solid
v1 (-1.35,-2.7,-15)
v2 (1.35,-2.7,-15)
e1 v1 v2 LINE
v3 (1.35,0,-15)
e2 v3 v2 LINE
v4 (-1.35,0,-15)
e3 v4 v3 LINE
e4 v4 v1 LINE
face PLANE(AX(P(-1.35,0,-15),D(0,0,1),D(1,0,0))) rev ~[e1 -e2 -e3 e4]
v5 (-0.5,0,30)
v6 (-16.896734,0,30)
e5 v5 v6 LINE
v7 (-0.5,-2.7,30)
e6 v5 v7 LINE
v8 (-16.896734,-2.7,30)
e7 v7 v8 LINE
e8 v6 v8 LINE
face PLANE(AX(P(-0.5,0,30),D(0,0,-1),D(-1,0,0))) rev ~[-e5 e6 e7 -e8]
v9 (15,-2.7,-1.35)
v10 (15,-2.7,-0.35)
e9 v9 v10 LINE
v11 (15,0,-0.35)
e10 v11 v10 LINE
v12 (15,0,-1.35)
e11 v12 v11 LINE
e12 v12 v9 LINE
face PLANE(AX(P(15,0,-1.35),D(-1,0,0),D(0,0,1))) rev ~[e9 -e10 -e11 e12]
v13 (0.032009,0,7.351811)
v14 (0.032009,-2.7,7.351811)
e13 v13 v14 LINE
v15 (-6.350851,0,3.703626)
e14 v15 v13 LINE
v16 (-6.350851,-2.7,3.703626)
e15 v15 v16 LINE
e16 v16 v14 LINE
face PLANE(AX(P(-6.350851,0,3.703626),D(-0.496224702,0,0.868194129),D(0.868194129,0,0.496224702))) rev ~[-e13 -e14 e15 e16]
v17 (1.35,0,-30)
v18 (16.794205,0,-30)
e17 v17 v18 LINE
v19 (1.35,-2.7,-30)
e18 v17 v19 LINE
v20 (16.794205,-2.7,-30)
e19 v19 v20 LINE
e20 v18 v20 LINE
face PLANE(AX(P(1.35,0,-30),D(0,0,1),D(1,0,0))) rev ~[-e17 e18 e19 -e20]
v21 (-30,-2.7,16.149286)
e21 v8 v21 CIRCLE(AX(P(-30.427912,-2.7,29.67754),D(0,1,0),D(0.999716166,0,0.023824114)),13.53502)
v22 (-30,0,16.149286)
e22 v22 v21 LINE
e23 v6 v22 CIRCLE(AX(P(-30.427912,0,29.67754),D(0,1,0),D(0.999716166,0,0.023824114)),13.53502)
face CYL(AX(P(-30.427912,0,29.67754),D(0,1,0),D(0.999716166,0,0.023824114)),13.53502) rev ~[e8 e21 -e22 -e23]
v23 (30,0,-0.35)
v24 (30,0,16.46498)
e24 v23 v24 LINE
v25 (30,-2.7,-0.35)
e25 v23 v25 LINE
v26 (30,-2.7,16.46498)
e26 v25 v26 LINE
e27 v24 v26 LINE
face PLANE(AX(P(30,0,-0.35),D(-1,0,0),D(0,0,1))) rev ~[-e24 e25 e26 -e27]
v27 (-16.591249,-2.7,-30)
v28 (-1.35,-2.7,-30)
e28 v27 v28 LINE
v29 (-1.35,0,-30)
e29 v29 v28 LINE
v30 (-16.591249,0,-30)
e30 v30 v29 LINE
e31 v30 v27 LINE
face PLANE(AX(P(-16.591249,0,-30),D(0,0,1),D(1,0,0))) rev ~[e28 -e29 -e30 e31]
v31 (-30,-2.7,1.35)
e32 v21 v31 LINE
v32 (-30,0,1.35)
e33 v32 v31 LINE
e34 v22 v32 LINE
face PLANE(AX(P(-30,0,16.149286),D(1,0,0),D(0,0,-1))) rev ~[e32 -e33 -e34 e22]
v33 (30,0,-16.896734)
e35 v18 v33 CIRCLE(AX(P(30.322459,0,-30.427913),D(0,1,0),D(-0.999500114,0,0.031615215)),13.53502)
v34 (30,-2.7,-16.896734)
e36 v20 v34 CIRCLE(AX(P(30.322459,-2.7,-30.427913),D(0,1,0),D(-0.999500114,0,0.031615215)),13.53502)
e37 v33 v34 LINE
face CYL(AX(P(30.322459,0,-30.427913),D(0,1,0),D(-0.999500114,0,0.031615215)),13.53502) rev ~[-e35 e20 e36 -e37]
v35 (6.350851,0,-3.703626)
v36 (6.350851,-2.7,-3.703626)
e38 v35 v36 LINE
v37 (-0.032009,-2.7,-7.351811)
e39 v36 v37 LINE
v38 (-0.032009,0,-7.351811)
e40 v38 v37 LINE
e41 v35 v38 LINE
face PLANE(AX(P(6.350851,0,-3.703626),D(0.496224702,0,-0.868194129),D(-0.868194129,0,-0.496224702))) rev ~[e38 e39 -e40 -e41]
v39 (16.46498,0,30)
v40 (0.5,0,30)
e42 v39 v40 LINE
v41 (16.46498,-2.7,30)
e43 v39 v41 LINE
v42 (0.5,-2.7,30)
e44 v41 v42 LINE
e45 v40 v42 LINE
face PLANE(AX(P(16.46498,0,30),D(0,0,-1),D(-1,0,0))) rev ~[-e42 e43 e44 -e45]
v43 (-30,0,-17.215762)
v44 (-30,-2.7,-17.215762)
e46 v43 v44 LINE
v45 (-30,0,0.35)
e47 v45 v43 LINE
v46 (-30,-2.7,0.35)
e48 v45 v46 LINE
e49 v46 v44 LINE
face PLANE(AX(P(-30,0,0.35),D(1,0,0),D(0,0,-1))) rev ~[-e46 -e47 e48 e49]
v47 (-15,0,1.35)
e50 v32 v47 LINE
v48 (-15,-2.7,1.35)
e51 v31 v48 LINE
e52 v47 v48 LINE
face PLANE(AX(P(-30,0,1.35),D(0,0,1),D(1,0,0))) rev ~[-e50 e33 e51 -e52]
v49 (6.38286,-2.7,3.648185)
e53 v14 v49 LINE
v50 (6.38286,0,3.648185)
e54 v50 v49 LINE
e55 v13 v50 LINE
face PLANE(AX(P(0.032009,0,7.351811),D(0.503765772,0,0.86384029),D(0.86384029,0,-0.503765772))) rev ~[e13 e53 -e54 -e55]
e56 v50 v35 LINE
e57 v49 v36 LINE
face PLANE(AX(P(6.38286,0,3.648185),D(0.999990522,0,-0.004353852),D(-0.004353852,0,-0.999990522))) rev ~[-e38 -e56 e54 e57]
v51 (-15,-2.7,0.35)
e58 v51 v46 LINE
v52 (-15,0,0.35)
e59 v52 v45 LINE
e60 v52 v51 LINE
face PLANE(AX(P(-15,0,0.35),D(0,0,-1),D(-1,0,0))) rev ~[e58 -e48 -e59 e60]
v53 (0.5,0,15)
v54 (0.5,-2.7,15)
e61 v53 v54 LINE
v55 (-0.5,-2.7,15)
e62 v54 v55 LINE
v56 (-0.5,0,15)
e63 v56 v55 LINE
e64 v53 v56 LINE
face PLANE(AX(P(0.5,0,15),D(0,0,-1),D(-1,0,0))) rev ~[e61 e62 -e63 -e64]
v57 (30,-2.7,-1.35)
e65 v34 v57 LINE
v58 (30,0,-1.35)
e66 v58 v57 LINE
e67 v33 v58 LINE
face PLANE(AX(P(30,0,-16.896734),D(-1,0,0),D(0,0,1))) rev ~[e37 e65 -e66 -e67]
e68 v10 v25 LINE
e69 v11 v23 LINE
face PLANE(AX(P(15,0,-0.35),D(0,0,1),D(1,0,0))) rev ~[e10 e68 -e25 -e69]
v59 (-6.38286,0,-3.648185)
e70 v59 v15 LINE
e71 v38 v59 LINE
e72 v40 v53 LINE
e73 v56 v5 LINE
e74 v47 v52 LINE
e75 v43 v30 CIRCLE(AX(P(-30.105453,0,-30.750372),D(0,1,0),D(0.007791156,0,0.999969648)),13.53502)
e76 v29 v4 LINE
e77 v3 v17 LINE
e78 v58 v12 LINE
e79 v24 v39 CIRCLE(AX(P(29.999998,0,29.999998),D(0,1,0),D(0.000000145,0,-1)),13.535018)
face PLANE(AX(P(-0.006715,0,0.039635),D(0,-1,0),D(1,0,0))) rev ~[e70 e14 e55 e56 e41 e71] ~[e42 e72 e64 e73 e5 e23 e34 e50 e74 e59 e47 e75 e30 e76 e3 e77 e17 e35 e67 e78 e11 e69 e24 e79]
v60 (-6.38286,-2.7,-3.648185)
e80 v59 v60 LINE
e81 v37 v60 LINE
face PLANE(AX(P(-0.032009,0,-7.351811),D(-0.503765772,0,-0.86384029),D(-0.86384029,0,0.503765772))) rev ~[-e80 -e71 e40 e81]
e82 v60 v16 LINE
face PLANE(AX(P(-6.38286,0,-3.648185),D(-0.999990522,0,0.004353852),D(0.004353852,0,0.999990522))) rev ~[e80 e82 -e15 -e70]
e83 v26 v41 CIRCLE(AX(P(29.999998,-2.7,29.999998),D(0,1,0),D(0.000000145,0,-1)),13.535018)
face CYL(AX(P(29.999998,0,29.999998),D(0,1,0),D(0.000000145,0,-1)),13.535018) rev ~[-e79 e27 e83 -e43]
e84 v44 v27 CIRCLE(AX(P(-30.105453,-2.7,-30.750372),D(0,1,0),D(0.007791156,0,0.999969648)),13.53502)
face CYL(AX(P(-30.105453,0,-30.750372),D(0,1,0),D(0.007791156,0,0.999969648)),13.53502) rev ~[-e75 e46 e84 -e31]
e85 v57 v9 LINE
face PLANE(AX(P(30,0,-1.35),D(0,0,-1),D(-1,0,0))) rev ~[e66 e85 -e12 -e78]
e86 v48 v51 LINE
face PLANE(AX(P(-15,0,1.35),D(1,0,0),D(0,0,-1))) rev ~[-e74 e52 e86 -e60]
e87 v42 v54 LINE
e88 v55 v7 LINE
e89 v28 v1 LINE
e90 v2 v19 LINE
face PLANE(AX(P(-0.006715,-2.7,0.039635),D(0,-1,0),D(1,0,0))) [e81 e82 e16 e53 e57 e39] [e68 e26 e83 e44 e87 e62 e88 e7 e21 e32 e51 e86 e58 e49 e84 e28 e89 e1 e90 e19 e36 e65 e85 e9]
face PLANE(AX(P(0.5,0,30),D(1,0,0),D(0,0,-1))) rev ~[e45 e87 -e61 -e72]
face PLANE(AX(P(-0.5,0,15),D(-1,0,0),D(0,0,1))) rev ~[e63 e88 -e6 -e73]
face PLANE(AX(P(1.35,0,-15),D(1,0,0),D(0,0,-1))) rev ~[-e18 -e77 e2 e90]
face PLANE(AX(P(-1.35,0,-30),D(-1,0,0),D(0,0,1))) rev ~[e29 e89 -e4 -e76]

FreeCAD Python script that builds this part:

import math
import FreeCAD as App
import Part
import Sketcher
from FreeCAD import Vector

doc = App.newDocument("Part")
body = doc.addObject("PartDesign::Body", "Body")

sketch1 = body.newObject("Sketcher::SketchObject", "Sketch")
sketch1.AttachmentSupport = (doc.getObject("XZ_Plane"), [""])
sketch1.MapMode = "FlatFace"
sketch1.addGeometry([
    Part.LineSegment(Vector(-0.5, 30, 0), Vector(-16.896734, 30, 0)),
    Part.ArcOfCircle(Part.Circle(Vector(-30.427912, 29.67754, 0), Vector(0, 0, 1), 13.53502), math.radians(-88.18828), math.radians(1.36515)),
    Part.LineSegment(Vector(-30, 16.149286, 0), Vector(-30, 1.35, 0)),
    Part.LineSegment(Vector(-30, 1.35, 0), Vector(-15, 1.35, 0)),
    Part.LineSegment(Vector(-15, 1.35, 0), Vector(-15, 0.35, 0)),
    Part.LineSegment(Vector(-15, 0.35, 0), Vector(-30, 0.35, 0)),
    Part.LineSegment(Vector(-30, 0.35, 0), Vector(-30, -17.215762, 0)),
    Part.ArcOfCircle(Part.Circle(Vector(-30.105453, -30.750372, 0), Vector(0, 0, 1), 13.53502), math.radians(3.178066), math.radians(89.553595)),
    Part.LineSegment(Vector(-16.591249, -30, 0), Vector(-1.35, -30, 0)),
    Part.LineSegment(Vector(-1.35, -30, 0), Vector(-1.35, -15, 0)),
    Part.LineSegment(Vector(-1.35, -15, 0), Vector(1.35, -15, 0)),
    Part.LineSegment(Vector(1.35, -15, 0), Vector(1.35, -30, 0)),
    Part.LineSegment(Vector(1.35, -30, 0), Vector(16.794205, -30, 0)),
    Part.ArcOfCircle(Part.Circle(Vector(30.322459, -30.427913, 0), Vector(0, 0, 1), 13.53502), math.radians(91.365148), math.radians(178.18828)),
    Part.LineSegment(Vector(30, -16.896734, 0), Vector(30, -1.35, 0)),
    Part.LineSegment(Vector(30, -1.35, 0), Vector(15, -1.35, 0)),
    Part.LineSegment(Vector(15, -1.35, 0), Vector(15, -0.35, 0)),
    Part.LineSegment(Vector(15, -0.35, 0), Vector(30, -0.35, 0)),
    Part.LineSegment(Vector(30, -0.35, 0), Vector(30, 16.46498, 0)),
    Part.ArcOfCircle(Part.Circle(Vector(29.999998, 29.999998, 0), Vector(0, 0, 1), 13.535018), math.radians(179.999992), math.radians(270.000008)),
    Part.LineSegment(Vector(16.46498, 30, 0), Vector(0.5, 30, 0)),
    Part.LineSegment(Vector(0.5, 30, 0), Vector(0.5, 15, 0)),
    Part.LineSegment(Vector(0.5, 15, 0), Vector(-0.5, 15, 0)),
    Part.LineSegment(Vector(-0.5, 15, 0), Vector(-0.5, 30, 0)),
    Part.LineSegment(Vector(-0.032009, -7.351811, 0), Vector(-6.38286, -3.648185, 0)),
    Part.LineSegment(Vector(-6.38286, -3.648185, 0), Vector(-6.350851, 3.703626, 0)),
    Part.LineSegment(Vector(-6.350851, 3.703626, 0), Vector(0.032009, 7.351811, 0)),
    Part.LineSegment(Vector(0.032009, 7.351811, 0), Vector(6.38286, 3.648185, 0)),
    Part.LineSegment(Vector(6.38286, 3.648185, 0), Vector(6.350851, -3.703626, 0)),
    Part.LineSegment(Vector(6.350851, -3.703626, 0), Vector(-0.032009, -7.351811, 0)),
], False)
sketch1.addConstraint([
    Sketcher.Constraint("Coincident", 0, 2, 1, 2),
    Sketcher.Constraint("Coincident", 1, 1, 2, 1),
    Sketcher.Constraint("Coincident", 2, 2, 3, 1),
    Sketcher.Constraint("Coincident", 3, 2, 4, 1),
    Sketcher.Constraint("Coincident", 4, 2, 5, 1),
    Sketcher.Constraint("Coincident", 5, 2, 6, 1),
    Sketcher.Constraint("Coincident", 6, 2, 7, 2),
    Sketcher.Constraint("Coincident", 7, 1, 8, 1),
    Sketcher.Constraint("Coincident", 8, 2, 9, 1),
    Sketcher.Constraint("Coincident", 9, 2, 10, 1),
    Sketcher.Constraint("Coincident", 10, 2, 11, 1),
    Sketcher.Constraint("Coincident", 11, 2, 12, 1),
    Sketcher.Constraint("Coincident", 12, 2, 13, 2),
    Sketcher.Constraint("Coincident", 13, 1, 14, 1),
    Sketcher.Constraint("Coincident", 14, 2, 15, 1),
    Sketcher.Constraint("Coincident", 15, 2, 16, 1),
    Sketcher.Constraint("Coincident", 16, 2, 17, 1),
    Sketcher.Constraint("Coincident", 17, 2, 18, 1),
    Sketcher.Constraint("Coincident", 18, 2, 19, 2),
    Sketcher.Constraint("Coincident", 19, 1, 20, 1),
    Sketcher.Constraint("Coincident", 20, 2, 21, 1),
    Sketcher.Constraint("Coincident", 21, 2, 22, 1),
    Sketcher.Constraint("Coincident", 22, 2, 23, 1),
    Sketcher.Constraint("Coincident", 23, 2, 0, 1),
    Sketcher.Constraint("Coincident", 24, 2, 25, 1),
    Sketcher.Constraint("Coincident", 25, 2, 26, 1),
    Sketcher.Constraint("Coincident", 26, 2, 27, 1),
    Sketcher.Constraint("Coincident", 27, 2, 28, 1),
    Sketcher.Constraint("Coincident", 28, 2, 29, 1),
    Sketcher.Constraint("Coincident", 29, 2, 24, 1),
    Sketcher.Constraint("Horizontal", 0),
    Sketcher.Constraint("Vertical", 2),
    Sketcher.Constraint("Horizontal", 3),
    Sketcher.Constraint("Vertical", 4),
    Sketcher.Constraint("Horizontal", 5),
    Sketcher.Constraint("Vertical", 6),
    Sketcher.Constraint("Horizontal", 8),
    Sketcher.Constraint("Vertical", 9),
    Sketcher.Constraint("Horizontal", 10),
    Sketcher.Constraint("Vertical", 11),
    Sketcher.Constraint("Horizontal", 12),
    Sketcher.Constraint("Vertical", 14),
    Sketcher.Constraint("Horizontal", 15),
    Sketcher.Constraint("Vertical", 16),
    Sketcher.Constraint("Horizontal", 17),
    Sketcher.Constraint("Vertical", 18),
    Sketcher.Constraint("Horizontal", 20),
    Sketcher.Constraint("Vertical", 21),
    Sketcher.Constraint("Horizontal", 22),
    Sketcher.Constraint("Vertical", 23),
    Sketcher.Constraint("Equal", 1, 7),
    Sketcher.Constraint("Equal", 7, 13),
    Sketcher.Constraint("Symmetric", 2, 2, 14, 2, -1, 1),
    Sketcher.Constraint("Symmetric", 4, 2, 16, 2, -1, 1),
    Sketcher.Constraint("Symmetric", 24, 2, 27, 2, -1, 1),
    Sketcher.Constraint("Symmetric", 25, 2, 28, 2, -1, 1),
    Sketcher.Constraint("Symmetric", 26, 2, 29, 2, -1, 1),
    Sketcher.Constraint("Symmetric", 8, 2, 11, 2, -2),
    Sketcher.Constraint("Symmetric", 20, 2, 23, 2, -2),
    Sketcher.Constraint("Horizontal", 19, 3, 0, 2),
    Sketcher.Constraint("Vertical", 2, 2, 5, 2),
    Sketcher.Constraint("Vertical", 19, 3, 13, 1),
    Sketcher.Constraint("Vertical", 14, 2, 17, 2),
    Sketcher.Constraint("Equal", 22, 4),
    Sketcher.Constraint("Equal", 17, 9),
    Sketcher.Constraint("Equal", 11, 21),
    Sketcher.Constraint("Equal", 24, 25),
    Sketcher.Constraint("Equal", 25, 26),
    Sketcher.Constraint("DistanceX", 3, 1, 3, 2, 15.0),
    Sketcher.Constraint("DistanceX", 22, 2, 22, 1, 1.0),
    Sketcher.Constraint("DistanceX", 10, 1, 10, 2, 2.7),
    Sketcher.Constraint("DistanceX", -1, 1, 19, 3, 29.999998),
    Sketcher.Constraint("DistanceY", -1, 1, 19, 3, 29.999998),
    Sketcher.Constraint("DistanceY", 7, 1, -1, 1, 30.0),
    Sketcher.Constraint("DistanceY", -1, 1, 2, 2, 1.35),
    Sketcher.Constraint("Radius", 1, 13.53502),
    Sketcher.Constraint("Radius", 19, 13.535018),
    Sketcher.Constraint("DistanceX", 8, 1, 8, 2, 15.241249),
    Sketcher.Constraint("DistanceY", 13, 3, 1, 1, 46.577199),
    Sketcher.Constraint("Distance", 24, 7.351881),
    Sketcher.Constraint("DistanceX", 0, 2, 0, 1, 16.396734),
    Sketcher.Constraint("DistanceX", 12, 1, 12, 2, 15.444205),
    Sketcher.Constraint("DistanceY", 2, 2, 2, 1, 14.799286),
    Sketcher.Constraint("DistanceY", 6, 2, 6, 1, 17.565762),
    Sketcher.Constraint("DistanceX", 24, 2, -1, 1, 6.38286),
    Sketcher.Constraint("DistanceX", 25, 2, -1, 1, 6.350851),
    Sketcher.Constraint("DistanceX", -1, 1, 26, 2, 0.032009),
])
pad1 = body.newObject("PartDesign::Pad", "Pad")
pad1.Profile = sketch1
pad1.Length = 2.7

doc.recompute()
